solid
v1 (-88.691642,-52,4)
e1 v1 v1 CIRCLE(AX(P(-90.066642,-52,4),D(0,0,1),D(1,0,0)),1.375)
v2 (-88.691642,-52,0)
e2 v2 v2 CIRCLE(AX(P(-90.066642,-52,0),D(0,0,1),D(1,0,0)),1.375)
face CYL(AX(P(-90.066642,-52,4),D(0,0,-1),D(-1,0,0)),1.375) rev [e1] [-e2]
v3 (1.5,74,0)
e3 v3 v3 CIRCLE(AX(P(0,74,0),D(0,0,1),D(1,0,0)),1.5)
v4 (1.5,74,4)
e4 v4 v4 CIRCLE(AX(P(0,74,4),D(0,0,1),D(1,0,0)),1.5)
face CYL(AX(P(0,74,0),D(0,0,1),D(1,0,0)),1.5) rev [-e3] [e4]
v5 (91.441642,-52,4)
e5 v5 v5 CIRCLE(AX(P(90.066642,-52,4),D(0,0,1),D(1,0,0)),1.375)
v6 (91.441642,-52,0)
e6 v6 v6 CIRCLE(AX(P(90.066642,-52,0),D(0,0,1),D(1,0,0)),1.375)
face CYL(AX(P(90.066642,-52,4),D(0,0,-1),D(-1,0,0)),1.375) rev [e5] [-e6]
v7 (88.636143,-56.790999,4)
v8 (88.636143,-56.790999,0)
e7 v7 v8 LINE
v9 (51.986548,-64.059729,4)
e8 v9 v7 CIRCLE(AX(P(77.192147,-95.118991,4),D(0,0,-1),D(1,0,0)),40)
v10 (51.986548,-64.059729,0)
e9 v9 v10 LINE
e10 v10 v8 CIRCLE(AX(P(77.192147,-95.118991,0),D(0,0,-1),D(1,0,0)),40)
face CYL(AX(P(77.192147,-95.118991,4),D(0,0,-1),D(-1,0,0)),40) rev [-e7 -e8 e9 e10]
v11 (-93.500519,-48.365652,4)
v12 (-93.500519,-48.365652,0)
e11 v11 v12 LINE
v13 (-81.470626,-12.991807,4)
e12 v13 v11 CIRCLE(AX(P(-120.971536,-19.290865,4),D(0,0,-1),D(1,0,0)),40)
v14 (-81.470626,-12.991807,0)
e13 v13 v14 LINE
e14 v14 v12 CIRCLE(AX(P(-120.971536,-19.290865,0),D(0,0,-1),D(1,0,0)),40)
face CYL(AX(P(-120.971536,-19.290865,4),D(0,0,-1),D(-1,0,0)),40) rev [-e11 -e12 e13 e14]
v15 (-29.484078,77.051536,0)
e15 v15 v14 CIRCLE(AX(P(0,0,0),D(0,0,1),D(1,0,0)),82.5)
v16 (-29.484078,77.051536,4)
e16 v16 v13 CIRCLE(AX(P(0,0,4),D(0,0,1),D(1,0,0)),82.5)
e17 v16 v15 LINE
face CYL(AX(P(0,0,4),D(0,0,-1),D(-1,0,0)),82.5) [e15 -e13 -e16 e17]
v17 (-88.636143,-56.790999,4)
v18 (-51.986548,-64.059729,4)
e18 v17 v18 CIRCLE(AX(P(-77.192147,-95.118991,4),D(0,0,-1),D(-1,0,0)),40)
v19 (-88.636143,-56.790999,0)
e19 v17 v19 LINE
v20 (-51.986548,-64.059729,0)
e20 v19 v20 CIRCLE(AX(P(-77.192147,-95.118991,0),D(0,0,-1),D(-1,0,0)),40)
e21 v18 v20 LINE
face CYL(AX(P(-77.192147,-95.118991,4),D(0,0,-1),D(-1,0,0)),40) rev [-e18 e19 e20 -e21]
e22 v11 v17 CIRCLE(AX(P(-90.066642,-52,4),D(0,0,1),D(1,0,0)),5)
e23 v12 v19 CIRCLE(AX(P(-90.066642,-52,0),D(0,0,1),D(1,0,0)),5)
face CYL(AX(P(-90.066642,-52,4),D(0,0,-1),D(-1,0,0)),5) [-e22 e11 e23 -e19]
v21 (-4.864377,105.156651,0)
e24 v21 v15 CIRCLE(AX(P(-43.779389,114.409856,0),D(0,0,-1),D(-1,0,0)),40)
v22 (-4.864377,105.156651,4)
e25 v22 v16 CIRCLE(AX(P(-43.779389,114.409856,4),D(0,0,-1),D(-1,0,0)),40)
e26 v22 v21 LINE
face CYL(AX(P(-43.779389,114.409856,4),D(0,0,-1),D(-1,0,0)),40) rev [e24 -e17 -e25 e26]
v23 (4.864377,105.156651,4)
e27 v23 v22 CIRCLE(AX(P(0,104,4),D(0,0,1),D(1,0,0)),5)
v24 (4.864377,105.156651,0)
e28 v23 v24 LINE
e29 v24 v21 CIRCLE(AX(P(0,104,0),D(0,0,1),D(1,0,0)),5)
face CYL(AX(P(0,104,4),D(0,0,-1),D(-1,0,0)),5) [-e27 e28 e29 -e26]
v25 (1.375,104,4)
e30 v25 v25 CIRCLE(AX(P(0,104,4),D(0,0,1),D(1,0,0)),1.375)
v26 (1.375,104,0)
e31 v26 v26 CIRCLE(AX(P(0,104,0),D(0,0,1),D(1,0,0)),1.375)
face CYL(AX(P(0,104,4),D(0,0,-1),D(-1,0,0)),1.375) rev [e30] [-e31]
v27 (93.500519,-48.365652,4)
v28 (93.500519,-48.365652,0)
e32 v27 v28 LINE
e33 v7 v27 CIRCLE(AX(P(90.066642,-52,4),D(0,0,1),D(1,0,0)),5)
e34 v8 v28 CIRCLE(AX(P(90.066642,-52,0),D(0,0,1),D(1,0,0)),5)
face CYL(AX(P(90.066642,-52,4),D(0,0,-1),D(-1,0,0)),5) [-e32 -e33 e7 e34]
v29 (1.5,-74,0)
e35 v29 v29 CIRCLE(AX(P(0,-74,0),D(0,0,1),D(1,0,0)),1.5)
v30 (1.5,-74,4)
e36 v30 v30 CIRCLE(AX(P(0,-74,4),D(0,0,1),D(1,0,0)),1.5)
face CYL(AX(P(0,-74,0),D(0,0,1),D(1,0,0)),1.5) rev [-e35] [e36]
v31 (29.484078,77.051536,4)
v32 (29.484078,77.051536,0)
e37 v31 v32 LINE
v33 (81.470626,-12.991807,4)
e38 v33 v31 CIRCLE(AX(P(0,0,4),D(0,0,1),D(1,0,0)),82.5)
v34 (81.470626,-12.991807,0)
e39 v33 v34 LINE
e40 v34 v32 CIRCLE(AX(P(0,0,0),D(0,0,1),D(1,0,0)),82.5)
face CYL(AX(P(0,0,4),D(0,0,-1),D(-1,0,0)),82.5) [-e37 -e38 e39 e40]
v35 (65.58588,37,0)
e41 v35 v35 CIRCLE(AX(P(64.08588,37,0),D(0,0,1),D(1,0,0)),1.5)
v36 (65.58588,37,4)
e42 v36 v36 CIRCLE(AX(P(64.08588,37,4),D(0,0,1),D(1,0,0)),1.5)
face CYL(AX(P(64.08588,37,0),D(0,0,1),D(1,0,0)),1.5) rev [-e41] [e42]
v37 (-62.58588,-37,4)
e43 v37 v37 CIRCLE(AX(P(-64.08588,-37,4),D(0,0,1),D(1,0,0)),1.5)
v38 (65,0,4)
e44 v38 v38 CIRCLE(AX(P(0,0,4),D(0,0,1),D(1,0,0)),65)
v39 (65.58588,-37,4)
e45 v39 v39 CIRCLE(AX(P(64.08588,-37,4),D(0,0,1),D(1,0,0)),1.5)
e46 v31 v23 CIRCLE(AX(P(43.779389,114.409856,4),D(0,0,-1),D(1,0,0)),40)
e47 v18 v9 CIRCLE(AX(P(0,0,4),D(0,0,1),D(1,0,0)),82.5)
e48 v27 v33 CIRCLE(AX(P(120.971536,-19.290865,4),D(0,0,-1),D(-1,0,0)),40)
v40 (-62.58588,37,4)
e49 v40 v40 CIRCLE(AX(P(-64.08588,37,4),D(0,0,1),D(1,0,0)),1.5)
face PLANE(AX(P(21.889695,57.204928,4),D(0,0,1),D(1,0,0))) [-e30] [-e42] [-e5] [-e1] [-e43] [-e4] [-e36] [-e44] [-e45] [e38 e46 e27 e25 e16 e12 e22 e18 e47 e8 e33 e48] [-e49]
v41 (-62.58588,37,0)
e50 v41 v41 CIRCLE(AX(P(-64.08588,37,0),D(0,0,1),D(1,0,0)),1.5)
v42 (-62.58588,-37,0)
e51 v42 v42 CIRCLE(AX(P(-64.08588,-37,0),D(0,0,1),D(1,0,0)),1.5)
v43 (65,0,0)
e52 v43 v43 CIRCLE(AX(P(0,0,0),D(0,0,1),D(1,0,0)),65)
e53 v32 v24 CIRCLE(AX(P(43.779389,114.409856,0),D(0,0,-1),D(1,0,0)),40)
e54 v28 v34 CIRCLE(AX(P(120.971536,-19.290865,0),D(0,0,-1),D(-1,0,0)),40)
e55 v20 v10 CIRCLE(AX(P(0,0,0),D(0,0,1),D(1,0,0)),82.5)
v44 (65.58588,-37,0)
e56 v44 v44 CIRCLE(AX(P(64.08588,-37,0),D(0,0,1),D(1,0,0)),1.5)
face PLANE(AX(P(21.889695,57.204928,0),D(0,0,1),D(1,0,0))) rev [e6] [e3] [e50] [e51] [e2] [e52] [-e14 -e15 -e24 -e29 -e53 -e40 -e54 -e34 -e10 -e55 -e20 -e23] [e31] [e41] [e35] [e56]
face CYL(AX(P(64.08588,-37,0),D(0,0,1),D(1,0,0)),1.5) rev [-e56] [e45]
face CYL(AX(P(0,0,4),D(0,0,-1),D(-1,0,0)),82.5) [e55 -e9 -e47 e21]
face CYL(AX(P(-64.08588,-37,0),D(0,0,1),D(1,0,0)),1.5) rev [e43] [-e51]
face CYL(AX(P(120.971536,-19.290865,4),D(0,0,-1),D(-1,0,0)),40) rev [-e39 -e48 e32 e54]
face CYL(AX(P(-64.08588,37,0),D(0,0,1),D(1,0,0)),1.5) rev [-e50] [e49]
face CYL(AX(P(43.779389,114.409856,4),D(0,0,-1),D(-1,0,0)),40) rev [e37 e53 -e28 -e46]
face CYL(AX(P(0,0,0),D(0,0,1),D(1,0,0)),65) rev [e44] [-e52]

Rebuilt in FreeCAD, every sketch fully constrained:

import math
import FreeCAD as App
import Part
import Sketcher
from FreeCAD import Vector

doc = App.newDocument("Part")
body = doc.addObject("PartDesign::Body", "Body")

# Sketch on XY plane
sketch1 = body.newObject("Sketcher::SketchObject", "Sketch")
sketch1.AttachmentSupport = (doc.getObject("XY_Plane"), [""])
sketch1.MapMode = "FlatFace"
sketch1.addGeometry(Part.ArcOfCircle(Part.Circle(Vector(0, 0, 0), Vector(0, 0, 1), 82.5), math.radians(111), math.radians(189)), False)
sketch1.addGeometry(Part.ArcOfCircle(Part.Circle(Vector(-121, -19.3, 0), Vector(0, 0, 1), 40), math.radians(-47), math.radians(9)), False)
sketch1.addGeometry(Part.ArcOfCircle(Part.Circle(Vector(-90.1, -52, 0), Vector(0, 0, 1), 5), math.radians(133), math.radians(287)), False)
sketch1.addGeometry(Part.ArcOfCircle(Part.Circle(Vector(-77.2, -95.1, 0), Vector(0, 0, 1), 40), math.radians(51), math.radians(107)), False)
sketch1.addGeometry(Part.ArcOfCircle(Part.Circle(Vector(0, 0, 0), Vector(0, 0, 1), 82.5), math.radians(-129), math.radians(-51)), False)
sketch1.addGeometry(Part.ArcOfCircle(Part.Circle(Vector(77.2, -95.1, 0), Vector(0, 0, 1), 40), math.radians(73), math.radians(129)), False)
sketch1.addGeometry(Part.ArcOfCircle(Part.Circle(Vector(90.1, -52, 0), Vector(0, 0, 1), 5), math.radians(-107), math.radians(47)), False)
sketch1.addGeometry(Part.ArcOfCircle(Part.Circle(Vector(121, -19.3, 0), Vector(0, 0, 1), 40), math.radians(171), math.radians(227)), False)
sketch1.addGeometry(Part.ArcOfCircle(Part.Circle(Vector(0, 0, 0), Vector(0, 0, 1), 82.5), math.radians(-9), math.radians(69)), False)
sketch1.addGeometry(Part.ArcOfCircle(Part.Circle(Vector(43.8, 114.4, 0), Vector(0, 0, 1), 40), math.radians(-167), math.radians(-111)), False)
sketch1.addGeometry(Part.ArcOfCircle(Part.Circle(Vector(0, 104, 0), Vector(0, 0, 1), 5), math.radians(13), math.radians(167)), False)
sketch1.addGeometry(Part.ArcOfCircle(Part.Circle(Vector(-43.8, 114.4, 0), Vector(0, 0, 1), 40), math.radians(-69), math.radians(-13)), False)
sketch1.addGeometry(Part.Circle(Vector(-90.1, -52, 0), Vector(0, 0, 1), 1.4), False)
sketch1.addGeometry(Part.Circle(Vector(90.1, -52, 0), Vector(0, 0, 1), 1.4), False)
sketch1.addGeometry(Part.Circle(Vector(0, 104, 0), Vector(0, 0, 1), 1.4), False)
sketch1.addConstraint(Sketcher.Constraint("Tangent", 0, 2, 1, 2))
sketch1.addConstraint(Sketcher.Constraint("Tangent", 1, 1, 2, 1))
sketch1.addConstraint(Sketcher.Constraint("Tangent", 2, 2, 3, 2))
sketch1.addConstraint(Sketcher.Constraint("Tangent", 3, 1, 4, 1))
sketch1.addConstraint(Sketcher.Constraint("Tangent", 4, 2, 5, 2))
sketch1.addConstraint(Sketcher.Constraint("Tangent", 5, 1, 6, 1))
sketch1.addConstraint(Sketcher.Constraint("Tangent", 6, 2, 7, 2))
sketch1.addConstraint(Sketcher.Constraint("Tangent", 7, 1, 8, 1))
sketch1.addConstraint(Sketcher.Constraint("Tangent", 8, 2, 9, 2))
sketch1.addConstraint(Sketcher.Constraint("Tangent", 9, 1, 10, 1))
sketch1.addConstraint(Sketcher.Constraint("Tangent", 10, 2, 11, 2))
sketch1.addConstraint(Sketcher.Constraint("Tangent", 11, 1, 0, 1))
sketch1.addConstraint(Sketcher.Constraint("Coincident", 0, 3, -1, 1))
sketch1.addConstraint(Sketcher.Constraint("Coincident", 4, 3, -1, 1))
sketch1.addConstraint(Sketcher.Constraint("Coincident", 8, 3, -1, 1))
sketch1.addConstraint(Sketcher.Constraint("Coincident", 12, 3, 2, 3))
sketch1.addConstraint(Sketcher.Constraint("Coincident", 13, 3, 6, 3))
sketch1.addConstraint(Sketcher.Constraint("Coincident", 14, 3, 10, 3))
sketch1.addConstraint(Sketcher.Constraint("Equal", 1, 3))
sketch1.addConstraint(Sketcher.Constraint("Equal", 0, 4))
sketch1.addConstraint(Sketcher.Constraint("Equal", 3, 5))
sketch1.addConstraint(Sketcher.Constraint("Equal", 2, 6))
sketch1.addConstraint(Sketcher.Constraint("Equal", 5, 7))
sketch1.addConstraint(Sketcher.Constraint("Equal", 4, 8))
sketch1.addConstraint(Sketcher.Constraint("Equal", 7, 9))
sketch1.addConstraint(Sketcher.Constraint("Equal", 6, 10))
sketch1.addConstraint(Sketcher.Constraint("Equal", 9, 11))
sketch1.addConstraint(Sketcher.Constraint("Equal", 12, 13))
sketch1.addConstraint(Sketcher.Constraint("Equal", 13, 14))
sketch1.addConstraint(Sketcher.Constraint("Symmetric", 2, 3, 6, 3, -2))
sketch1.addConstraint(Sketcher.Constraint("PointOnObject", 10, 3, -2))
sketch1.addConstraint(Sketcher.Constraint("Radius", 1, 40.0))
sketch1.addConstraint(Sketcher.Constraint("Radius", 2, 5.0))
sketch1.addConstraint(Sketcher.Constraint("Radius", 0, 82.5))
sketch1.addConstraint(Sketcher.Constraint("Diameter", 12, 2.75))
sketch1.addConstraint(Sketcher.Constraint("DistanceY", 2, 3, -1, 1, 52.0))
sketch1.addConstraint(Sketcher.Constraint("DistanceY", -1, 1, 10, 3, 104.0))
sketch1.addConstraint(Sketcher.Constraint("DistanceY", 2, 2, -1, 1, 56.790999))
pad1 = body.newObject("PartDesign::Pad", "Pad")
pad1.Profile = sketch1
pad1.Length = 4

# Sketch on XY plane
sketch2 = body.newObject("Sketcher::SketchObject", "Sketch001")
sketch2.AttachmentSupport = (doc.getObject("XY_Plane"), [""])
sketch2.MapMode = "FlatFace"
sketch2.AttachmentOffset = App.Placement(Vector(0, 0, 4), App.Rotation())
sketch2.addGeometry(Part.Circle(Vector(0, 74, 0), Vector(0, 0, 1), 1.5), False)
sketch2.addGeometry(Part.Circle(Vector(-64.1, -37, 0), Vector(0, 0, 1), 1.5), False)
sketch2.addGeometry(Part.Circle(Vector(64.1, -37, 0), Vector(0, 0, 1), 1.5), False)
sketch2.addGeometry(Part.Circle(Vector(-64.1, 37, 0), Vector(0, 0, 1), 1.5), False)
sketch2.addGeometry(Part.Circle(Vector(64.1, 37, 0), Vector(0, 0, 1), 1.5), False)
sketch2.addGeometry(Part.Circle(Vector(0, -74, 0), Vector(0, 0, 1), 1.5), False)
sketch2.addGeometry(Part.Circle(Vector(0, 0, 0), Vector(0, 0, 1), 65), False)
sketch2.addConstraint(Sketcher.Constraint("Coincident", 6, 3, -1, 1))
sketch2.addConstraint(Sketcher.Constraint("Equal", 0, 1))
sketch2.addConstraint(Sketcher.Constraint("Equal", 1, 2))
sketch2.addConstraint(Sketcher.Constraint("Equal", 2, 3))
sketch2.addConstraint(Sketcher.Constraint("Equal", 3, 4))
sketch2.addConstraint(Sketcher.Constraint("Equal", 4, 5))
sketch2.addConstraint(Sketcher.Constraint("Symmetric", 2, 3, 3, 3, -1, 1))
sketch2.addConstraint(Sketcher.Constraint("Symmetric", 1, 3, 4, 3, -1, 1))
sketch2.addConstraint(Sketcher.Constraint("Symmetric", 0, 3, 5, 3, -1, 1))
sketch2.addConstraint(Sketcher.Constraint("Symmetric", 1, 3, 2, 3, -2))
sketch2.addConstraint(Sketcher.Constraint("PointOnObject", 0, 3, -2))
sketch2.addConstraint(Sketcher.Constraint("Diameter", 0, 3.0))
sketch2.addConstraint(Sketcher.Constraint("Diameter", 6, 130.0))
sketch2.addConstraint(Sketcher.Constraint("DistanceY", -1, 1, 0, 3, 74.0))
sketch2.addConstraint(Sketcher.Constraint("DistanceY", 1, 3, -1, 1, 37.0))
sketch2.addConstraint(Sketcher.Constraint("DistanceX", 1, 3, -1, 1, 64.08588))
pocket1 = body.newObject("PartDesign::Pocket", "Pocket")
pocket1.Profile = sketch2
pocket1.Type = "ThroughAll"

doc.recompute()
